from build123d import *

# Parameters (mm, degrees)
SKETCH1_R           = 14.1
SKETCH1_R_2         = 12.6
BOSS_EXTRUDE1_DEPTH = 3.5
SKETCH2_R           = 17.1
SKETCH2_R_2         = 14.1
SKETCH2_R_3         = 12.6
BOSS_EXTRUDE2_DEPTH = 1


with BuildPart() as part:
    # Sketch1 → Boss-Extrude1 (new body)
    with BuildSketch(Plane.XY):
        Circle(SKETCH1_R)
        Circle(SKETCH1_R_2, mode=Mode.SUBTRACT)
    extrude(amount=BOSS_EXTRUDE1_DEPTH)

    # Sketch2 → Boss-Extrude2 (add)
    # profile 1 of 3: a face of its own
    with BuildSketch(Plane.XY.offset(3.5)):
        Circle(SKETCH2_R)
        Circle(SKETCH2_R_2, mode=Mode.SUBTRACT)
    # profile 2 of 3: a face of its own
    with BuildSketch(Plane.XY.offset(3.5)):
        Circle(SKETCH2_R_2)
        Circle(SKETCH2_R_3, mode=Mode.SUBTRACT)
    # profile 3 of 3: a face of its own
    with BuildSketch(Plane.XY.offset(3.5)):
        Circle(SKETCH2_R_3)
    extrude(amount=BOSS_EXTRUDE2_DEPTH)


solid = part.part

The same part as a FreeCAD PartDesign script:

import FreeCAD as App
import Part
import Sketcher
from FreeCAD import Vector
Q = App.Units.Quantity

doc = App.newDocument("Part")
params = doc.addObject("Spreadsheet::Sheet", "Params")
for row, (alias, value) in enumerate([
    ("sketch1_diameter", "28.2 mm"),
    ("sketch1_diameter2", "25.2 mm"),
    ("pad1_length", "3.5 mm"),
    ("sketch2_diameter", "34.2 mm"),
    ("pad2_length", "1 mm"),
], start=1):
    params.set(f"A{row}", alias)
    params.set(f"B{row}", "=" + value)
    params.setAlias(f"B{row}", alias)

body = doc.addObject("PartDesign::Body", "Body")

# Sketch on XY plane
sketch1 = body.newObject("Sketcher::SketchObject", "Sketch")
sketch1.AttachmentSupport = (doc.getObject("XY_Plane"), [""])
sketch1.MapMode = "FlatFace"
sketch1.addGeometry([
    Part.Circle(Vector(0, 0, 0), Vector(0, 0, 1), 14.1),
    Part.Circle(Vector(0, 0, 0), Vector(0, 0, 1), 12.6),
], False)
sketch1.addConstraint([
    Sketcher.Constraint("Coincident", 0, 3, -1, 1),
    Sketcher.Constraint("Coincident", 1, 3, -1, 1),
    Sketcher.Constraint("Diameter", 0, Q("28.2 mm")),
    Sketcher.Constraint("Diameter", 1, Q("25.2 mm")),
])
sketch1.setExpression("Constraints[2]", "Params.sketch1_diameter")
sketch1.setExpression("Constraints[3]", "Params.sketch1_diameter2")
pad1 = body.newObject("PartDesign::Pad", "Pad")
pad1.Profile = sketch1
pad1.setExpression("Length", "Params.pad1_length")

# Sketch on XY plane
sketch2 = body.newObject("Sketcher::SketchObject", "Sketch001")
sketch2.AttachmentSupport = (doc.getObject("XY_Plane"), [""])
sketch2.MapMode = "FlatFace"
sketch2.AttachmentOffset = App.Placement(Vector(0, 0, 3.5), App.Rotation())
sketch2.addGeometry(Part.Circle(Vector(0, 0, 0), Vector(0, 0, 1), 17.1), False)
sketch2.addConstraint([
    Sketcher.Constraint("Coincident", 0, 3, -1, 1),
    Sketcher.Constraint("Diameter", 0, Q("34.2 mm")),
])
sketch2.setExpression("Constraints[1]", "Params.sketch2_diameter")
pad2 = body.newObject("PartDesign::Pad", "Pad001")
pad2.Profile = sketch2
pad2.setExpression("Length", "Params.pad2_length")

doc.recompute()
